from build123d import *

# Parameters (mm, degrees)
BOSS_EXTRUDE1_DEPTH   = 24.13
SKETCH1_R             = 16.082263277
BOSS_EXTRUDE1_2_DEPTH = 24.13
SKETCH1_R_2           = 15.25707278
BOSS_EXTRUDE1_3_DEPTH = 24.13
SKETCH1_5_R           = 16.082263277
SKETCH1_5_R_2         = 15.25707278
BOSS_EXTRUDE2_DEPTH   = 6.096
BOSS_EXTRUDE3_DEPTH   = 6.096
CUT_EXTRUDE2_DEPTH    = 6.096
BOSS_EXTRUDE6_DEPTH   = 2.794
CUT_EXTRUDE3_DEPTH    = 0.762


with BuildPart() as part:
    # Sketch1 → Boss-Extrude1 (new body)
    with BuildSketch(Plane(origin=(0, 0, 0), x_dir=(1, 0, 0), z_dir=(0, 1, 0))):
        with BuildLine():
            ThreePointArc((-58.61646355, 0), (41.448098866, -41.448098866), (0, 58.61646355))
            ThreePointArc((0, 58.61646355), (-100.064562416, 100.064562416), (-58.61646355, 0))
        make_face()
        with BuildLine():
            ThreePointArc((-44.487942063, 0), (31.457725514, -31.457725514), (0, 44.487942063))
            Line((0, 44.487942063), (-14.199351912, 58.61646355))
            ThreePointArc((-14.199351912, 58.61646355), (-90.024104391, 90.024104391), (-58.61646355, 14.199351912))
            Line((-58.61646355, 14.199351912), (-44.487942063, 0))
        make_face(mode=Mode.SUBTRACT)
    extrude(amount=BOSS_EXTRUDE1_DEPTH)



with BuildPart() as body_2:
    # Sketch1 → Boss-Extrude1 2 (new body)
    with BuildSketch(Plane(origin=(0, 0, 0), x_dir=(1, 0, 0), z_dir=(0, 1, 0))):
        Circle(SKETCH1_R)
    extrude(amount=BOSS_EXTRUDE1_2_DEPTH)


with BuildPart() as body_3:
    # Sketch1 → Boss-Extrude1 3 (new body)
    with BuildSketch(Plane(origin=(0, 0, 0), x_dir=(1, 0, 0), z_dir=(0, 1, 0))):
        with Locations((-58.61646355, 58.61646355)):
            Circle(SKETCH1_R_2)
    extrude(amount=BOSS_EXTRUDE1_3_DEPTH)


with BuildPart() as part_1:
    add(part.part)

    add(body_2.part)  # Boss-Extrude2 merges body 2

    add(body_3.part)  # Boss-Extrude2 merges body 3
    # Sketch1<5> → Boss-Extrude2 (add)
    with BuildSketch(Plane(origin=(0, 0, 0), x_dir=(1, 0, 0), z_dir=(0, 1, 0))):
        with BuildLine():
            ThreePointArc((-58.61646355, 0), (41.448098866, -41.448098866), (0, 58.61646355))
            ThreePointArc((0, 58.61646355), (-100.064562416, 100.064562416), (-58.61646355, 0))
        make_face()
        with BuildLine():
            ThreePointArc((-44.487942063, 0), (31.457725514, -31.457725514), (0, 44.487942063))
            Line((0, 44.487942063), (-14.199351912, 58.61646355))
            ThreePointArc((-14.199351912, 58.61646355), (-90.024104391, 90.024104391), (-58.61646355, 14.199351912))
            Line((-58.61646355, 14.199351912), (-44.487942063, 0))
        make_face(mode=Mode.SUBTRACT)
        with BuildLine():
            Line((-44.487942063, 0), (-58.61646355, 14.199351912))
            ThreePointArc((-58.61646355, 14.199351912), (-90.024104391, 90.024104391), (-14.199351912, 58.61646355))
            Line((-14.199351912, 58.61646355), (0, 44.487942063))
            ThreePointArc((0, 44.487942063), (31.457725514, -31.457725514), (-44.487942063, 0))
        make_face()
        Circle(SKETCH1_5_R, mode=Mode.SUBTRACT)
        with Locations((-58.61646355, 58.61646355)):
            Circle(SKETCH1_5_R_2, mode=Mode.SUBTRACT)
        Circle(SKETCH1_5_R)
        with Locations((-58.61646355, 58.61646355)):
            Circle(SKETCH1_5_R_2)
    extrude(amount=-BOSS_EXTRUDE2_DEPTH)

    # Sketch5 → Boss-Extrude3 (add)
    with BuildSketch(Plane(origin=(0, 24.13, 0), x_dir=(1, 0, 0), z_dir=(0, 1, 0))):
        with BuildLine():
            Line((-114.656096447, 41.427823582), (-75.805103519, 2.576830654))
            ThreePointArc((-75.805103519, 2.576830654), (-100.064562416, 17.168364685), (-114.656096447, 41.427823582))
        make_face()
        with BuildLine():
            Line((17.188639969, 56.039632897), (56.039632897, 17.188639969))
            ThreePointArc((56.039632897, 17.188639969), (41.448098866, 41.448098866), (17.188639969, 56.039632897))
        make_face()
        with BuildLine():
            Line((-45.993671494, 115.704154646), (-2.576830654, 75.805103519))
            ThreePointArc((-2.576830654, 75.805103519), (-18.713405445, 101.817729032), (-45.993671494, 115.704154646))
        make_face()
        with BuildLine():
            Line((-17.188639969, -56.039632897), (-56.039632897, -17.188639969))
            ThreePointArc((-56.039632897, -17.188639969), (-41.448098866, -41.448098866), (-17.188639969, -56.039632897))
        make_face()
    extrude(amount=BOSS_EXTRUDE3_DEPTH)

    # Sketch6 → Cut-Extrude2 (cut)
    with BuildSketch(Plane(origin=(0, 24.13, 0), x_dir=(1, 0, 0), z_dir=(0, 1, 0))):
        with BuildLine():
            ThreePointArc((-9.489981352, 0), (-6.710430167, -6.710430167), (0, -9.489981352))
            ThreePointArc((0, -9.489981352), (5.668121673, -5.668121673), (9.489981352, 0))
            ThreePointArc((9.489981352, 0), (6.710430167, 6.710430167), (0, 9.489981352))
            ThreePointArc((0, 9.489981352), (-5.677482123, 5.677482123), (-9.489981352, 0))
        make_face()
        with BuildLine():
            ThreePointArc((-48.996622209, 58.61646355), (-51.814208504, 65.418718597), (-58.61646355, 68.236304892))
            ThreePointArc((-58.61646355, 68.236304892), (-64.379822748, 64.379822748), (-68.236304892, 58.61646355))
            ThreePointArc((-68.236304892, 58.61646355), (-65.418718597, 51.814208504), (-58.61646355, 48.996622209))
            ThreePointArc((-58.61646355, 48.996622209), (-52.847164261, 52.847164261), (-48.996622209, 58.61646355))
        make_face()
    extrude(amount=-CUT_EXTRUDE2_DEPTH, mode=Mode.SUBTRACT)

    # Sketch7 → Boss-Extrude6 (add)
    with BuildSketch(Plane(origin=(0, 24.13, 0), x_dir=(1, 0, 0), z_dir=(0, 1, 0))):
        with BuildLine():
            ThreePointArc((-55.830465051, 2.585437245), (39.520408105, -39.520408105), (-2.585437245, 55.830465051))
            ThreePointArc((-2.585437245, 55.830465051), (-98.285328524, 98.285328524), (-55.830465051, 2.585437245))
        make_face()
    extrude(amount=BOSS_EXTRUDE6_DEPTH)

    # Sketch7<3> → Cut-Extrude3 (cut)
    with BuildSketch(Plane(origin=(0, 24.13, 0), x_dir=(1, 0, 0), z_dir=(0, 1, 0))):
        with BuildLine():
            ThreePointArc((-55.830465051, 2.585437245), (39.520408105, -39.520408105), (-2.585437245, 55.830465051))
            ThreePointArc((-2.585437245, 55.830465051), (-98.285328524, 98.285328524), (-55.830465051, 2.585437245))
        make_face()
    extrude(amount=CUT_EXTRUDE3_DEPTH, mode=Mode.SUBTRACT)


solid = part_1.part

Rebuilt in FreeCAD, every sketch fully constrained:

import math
import FreeCAD as App
import Part
import Sketcher
Q = App.Units.Quantity

doc = App.newDocument("Part")
body = doc.addObject("PartDesign::Body", "Body")

# Sketch on XZ plane
sketch1 = body.newObject("Sketcher::SketchObject", "Sketch")
sketch1.AttachmentSupport = (doc.getObject("XZ_Plane"), [""])
sketch1.MapMode = "FlatFace"
sketch1.addGeometry(Part.ArcOfCircle(Part.Circle(App.Vector(0, 0, 0), App.Vector(0, 0, 1), 59), math.radians(-90), math.radians(180)), False)
sketch1.addGeometry(Part.ArcOfCircle(Part.Circle(App.Vector(-59, -59, 0), App.Vector(0, 0, 1), 59), math.radians(90), math.radians(360)), False)
sketch1.addGeometry(Part.ArcOfCircle(Part.Circle(App.Vector(0, 0, 0), App.Vector(0, 0, 1), 44), math.radians(-90), math.radians(180)), False)
sketch1.addGeometry(Part.LineSegment(App.Vector(-44, 0, 0), App.Vector(-59, -14, 0)), False)
sketch1.addGeometry(Part.ArcOfCircle(Part.Circle(App.Vector(-59, -59, 0), App.Vector(0, 0, 1), 44), math.radians(90), math.radians(360)), False)
sketch1.addGeometry(Part.LineSegment(App.Vector(-14, -59, 0), App.Vector(0, -44, 0)), False)
sketch1.addConstraint(Sketcher.Constraint("Coincident", 0, 1, 1, 2))
sketch1.addConstraint(Sketcher.Constraint("Coincident", 1, 1, 0, 2))
sketch1.addConstraint(Sketcher.Constraint("Coincident", 2, 2, 3, 1))
sketch1.addConstraint(Sketcher.Constraint("Coincident", 3, 2, 4, 1))
sketch1.addConstraint(Sketcher.Constraint("Coincident", 4, 2, 5, 1))
sketch1.addConstraint(Sketcher.Constraint("Coincident", 5, 2, 2, 1))
sketch1.addConstraint(Sketcher.Constraint("Coincident", 0, 3, -1, 1))
sketch1.addConstraint(Sketcher.Constraint("Coincident", 2, 3, -1, 1))
sketch1.addConstraint(Sketcher.Constraint("Coincident", 4, 3, 1, 3))
sketch1.addConstraint(Sketcher.Constraint("Equal", 0, 1))
sketch1.addConstraint(Sketcher.Constraint("PointOnObject", 0, 1, -2))
sketch1.addConstraint(Sketcher.Constraint("PointOnObject", 1, 1, -1))
sketch1.addConstraint(Sketcher.Constraint("PointOnObject", 2, 2, -1))
sketch1.addConstraint(Sketcher.Constraint("PointOnObject", 5, 2, -2))
sketch1.addConstraint(Sketcher.Constraint("Horizontal", 0, 1, 4, 2))
sketch1.addConstraint(Sketcher.Constraint("Vertical", 1, 1, 3, 2))
sketch1.addConstraint(Sketcher.Constraint("Radius", 4, Q("44.417112 mm")))
sketch1.addConstraint(Sketcher.Constraint("Radius", 0, Q("58.616464 mm")))
sketch1.addConstraint(Sketcher.Constraint("Radius", 2, Q("44.487942 mm")))
pad1 = body.newObject("PartDesign::Pad", "Pad")
pad1.Profile = sketch1
pad1.Length = Q("0.95 in")
pad1.Reversed = True
body2 = doc.addObject("PartDesign::Body", "Body001")

# Sketch on XZ plane
sketch2 = body2.newObject("Sketcher::SketchObject", "Sketch001")
sketch2.AttachmentSupport = (doc.getObject("XZ_Plane001"), [""])
sketch2.MapMode = "FlatFace"
sketch2.addGeometry(Part.Circle(App.Vector(0, 0, 0), App.Vector(0, 0, 1), 16), False)
sketch2.addConstraint(Sketcher.Constraint("Coincident", 0, 3, -1, 1))
sketch2.addConstraint(Sketcher.Constraint("Diameter", 0, Q("32.164527 mm")))
pad2 = body2.newObject("PartDesign::Pad", "Pad001")
pad2.Profile = sketch2
pad2.Length = Q("0.95 in")
pad2.Reversed = True
body3 = doc.addObject("PartDesign::Body", "Body002")

# Sketch on XZ plane
sketch3 = body3.newObject("Sketcher::SketchObject", "Sketch002")
sketch3.AttachmentSupport = (doc.getObject("XZ_Plane002"), [""])
sketch3.MapMode = "FlatFace"
sketch3.addGeometry(Part.Circle(App.Vector(-59, -59, 0), App.Vector(0, 0, 1), 15), False)
sketch3.addConstraint(Sketcher.Constraint("Diameter", 0, Q("30.514146 mm")))
sketch3.addConstraint(Sketcher.Constraint("DistanceX", 0, 3, -1, 1, Q("58.616464 mm")))
sketch3.addConstraint(Sketcher.Constraint("DistanceY", 0, 3, -1, 1, Q("58.616464 mm")))
pad3 = body3.newObject("PartDesign::Pad", "Pad002")
pad3.Profile = sketch3
pad3.Length = Q("0.95 in")
pad3.Reversed = True
body.AllowCompound = True
doc.recompute()

boolean = body.newObject("PartDesign::Boolean", "Boolean")
boolean.Type = "Fuse"
boolean.addObjects([body2])
doc.recompute()

boolean2 = body.newObject("PartDesign::Boolean", "Boolean001")
boolean2.Type = "Fuse"
boolean2.addObjects([body3])

# Sketch on XZ plane
sketch4 = body.newObject("Sketcher::SketchObject", "Sketch003")
sketch4.AttachmentSupport = (doc.getObject("XZ_Plane"), [""])
sketch4.MapMode = "FlatFace"
sketch4.addGeometry(Part.ArcOfCircle(Part.Circle(App.Vector(0, 0, 0), App.Vector(0, 0, 1), 59), math.radians(-90), math.radians(180)), False)
sketch4.addGeometry(Part.ArcOfCircle(Part.Circle(App.Vector(-59, -59, 0), App.Vector(0, 0, 1), 59), math.radians(90), math.radians(360)), False)
sketch4.addConstraint(Sketcher.Constraint("Coincident", 0, 1, 1, 2))
sketch4.addConstraint(Sketcher.Constraint("Coincident", 1, 1, 0, 2))
sketch4.addConstraint(Sketcher.Constraint("Coincident", 0, 3, -1, 1))
sketch4.addConstraint(Sketcher.Constraint("Equal", 0, 1))
sketch4.addConstraint(Sketcher.Constraint("PointOnObject", 0, 1, -2))
sketch4.addConstraint(Sketcher.Constraint("PointOnObject", 1, 1, -1))
sketch4.addConstraint(Sketcher.Constraint("Radius", 0, Q("58.616464 mm")))
pad4 = body.newObject("PartDesign::Pad", "Pad003")
pad4.Profile = sketch4
pad4.Length = Q("0.24 in")

# Sketch on XZ plane
sketch5 = body.newObject("Sketcher::SketchObject", "Sketch004")
sketch5.AttachmentSupport = (doc.getObject("XZ_Plane"), [""])
sketch5.MapMode = "FlatFace"
sketch5.AttachmentOffset = App.Placement(App.Vector(0, 0, -0.95 * 25.4), App.Rotation())
sketch5.addGeometry(Part.LineSegment(App.Vector(-76, -3, 0), App.Vector(-115, -41, 0)), False)
sketch5.addGeometry(Part.ArcOfCircle(Part.Circle(App.Vector(-59, -59, 0), App.Vector(0, 0, 1), 59), math.radians(107), math.radians(163)), False)
sketch5.addGeometry(Part.LineSegment(App.Vector(17, -56, 0), App.Vector(56, -17, 0)), False)
sketch5.addGeometry(Part.ArcOfCircle(Part.Circle(App.Vector(0, 0, 0), App.Vector(0, 0, 1), 59), math.radians(-73), math.radians(-17)), False)
sketch5.addGeometry(Part.LineSegment(App.Vector(-46, -116, 0), App.Vector(-3, -76, 0)), False)
sketch5.addGeometry(Part.ArcOfCircle(Part.Circle(App.Vector(-57, -60, 0), App.Vector(0, 0, 1), 57), math.radians(-79), math.radians(-16)), False)
sketch5.addGeometry(Part.LineSegment(App.Vector(-17, 56, 0), App.Vector(-56, 17, 0)), False)
sketch5.addGeometry(Part.ArcOfCircle(Part.Circle(App.Vector(0, 0, 0), App.Vector(0, 0, 1), 59), math.radians(107), math.radians(163)), False)
sketch5.addConstraint(Sketcher.Constraint("Coincident", 0, 1, 1, 1))
sketch5.addConstraint(Sketcher.Constraint("Coincident", 1, 2, 0, 2))
sketch5.addConstraint(Sketcher.Constraint("Coincident", 2, 1, 3, 1))
sketch5.addConstraint(Sketcher.Constraint("Coincident", 3, 2, 2, 2))
sketch5.addConstraint(Sketcher.Constraint("Coincident", 4, 1, 5, 1))
sketch5.addConstraint(Sketcher.Constraint("Coincident", 5, 2, 4, 2))
sketch5.addConstraint(Sketcher.Constraint("Coincident", 6, 1, 7, 1))
sketch5.addConstraint(Sketcher.Constraint("Coincident", 7, 2, 6, 2))
sketch5.addConstraint(Sketcher.Constraint("Coincident", 3, 3, -1, 1))
sketch5.addConstraint(Sketcher.Constraint("Coincident", 7, 3, -1, 1))
sketch5.addConstraint(Sketcher.Constraint("Equal", 1, 3))
sketch5.addConstraint(Sketcher.Constraint("Equal", 3, 7))
sketch5.addConstraint(Sketcher.Constraint("Parallel", 0, 2))
sketch5.addConstraint(Sketcher.Constraint("Parallel", 2, 6))
sketch5.addConstraint(Sketcher.Constraint("Equal", 0, 2))
sketch5.addConstraint(Sketcher.Constraint("Equal", 2, 6))
sketch5.addConstraint(Sketcher.Constraint("Angle", 0, Q("-135 deg")))
sketch5.addConstraint(Sketcher.Constraint("Radius", 1, Q("58.616464 mm")))
sketch5.addConstraint(Sketcher.Constraint("Radius", 5, Q("56.897694 mm")))
sketch5.addConstraint(Sketcher.Constraint("Distance", 0, Q("54.943601 mm")))
sketch5.addConstraint(Sketcher.Constraint("DistanceX", 5, 3, 5, 2, Q("54.636298 mm")))
sketch5.addConstraint(Sketcher.Constraint("Distance", 4, Q("58.965722 mm")))
sketch5.addConstraint(Sketcher.Constraint("DistanceX", 5, 3, -1, 1, Q("57.213129 mm")))
sketch5.addConstraint(Sketcher.Constraint("DistanceY", 5, 3, -1, 1, Q("59.923591 mm")))
sketch5.addConstraint(Sketcher.Constraint("DistanceY", 0, 1, -1, 1, Q("2.576831 mm")))
sketch5.addConstraint(Sketcher.Constraint("DistanceX", 0, 1, 7, 2, Q("19.765471 mm")))
pad5 = body.newObject("PartDesign::Pad", "Pad004")
pad5.Profile = sketch5
pad5.Length = Q("0.24 in")
pad5.Reversed = True

# Sketch on XZ plane
sketch6 = body.newObject("Sketcher::SketchObject", "Sketch005")
sketch6.AttachmentSupport = (doc.getObject("XZ_Plane"), [""])
sketch6.MapMode = "FlatFace"
sketch6.AttachmentOffset = App.Placement(App.Vector(0, 0, -0.95 * 25.4), App.Rotation())
sketch6.addGeometry(Part.ArcOfCircle(Part.Circle(App.Vector(0, 0, 0), App.Vector(0, 0, 1), 9), math.radians(90), math.radians(180)), False)
sketch6.addGeometry(Part.ArcOfCircle(Part.Circle(App.Vector(-7, -7, 0), App.Vector(0, 0, 1), 18), math.radians(23), math.radians(67)), False)
sketch6.addGeometry(Part.ArcOfCircle(Part.Circle(App.Vector(0, 0, 0), App.Vector(0, 0, 1), 9), math.radians(-90), math.radians(0)), False)
sketch6.addGeometry(Part.ArcOfCircle(Part.Circle(App.Vector(7, 7, 0), App.Vector(0, 0, 1), 18), math.radians(-157), math.radians(-113)), False)
sketch6.addGeometry(Part.ArcOfCircle(Part.Circle(App.Vector(-59, -59, 0), App.Vector(0, 0, 1), 10), math.radians(-90), math.radians(0)), False)
sketch6.addGeometry(Part.ArcOfCircle(Part.Circle(App.Vector(-52, -52, 0), App.Vector(0, 0, 1), 18), math.radians(-157), math.radians(-113)), False)
sketch6.addGeometry(Part.ArcOfCircle(Part.Circle(App.Vector(-59, -59, 0), App.Vector(0, 0, 1), 10), math.radians(90), math.radians(180)), False)
sketch6.addGeometry(Part.ArcOfCircle(Part.Circle(App.Vector(-65, -65, 0), App.Vector(0, 0, 1), 18), math.radians(22), math.radians(68)), False)
sketch6.addConstraint(Sketcher.Constraint("Coincident", 0, 1, 1, 2))
sketch6.addConstraint(Sketcher.Constraint("Coincident", 1, 1, 2, 2))
sketch6.addConstraint(Sketcher.Constraint("Coincident", 2, 1, 3, 2))
sketch6.addConstraint(Sketcher.Constraint("Coincident", 3, 1, 0, 2))
sketch6.addConstraint(Sketcher.Constraint("Coincident", 4, 1, 5, 2))
sketch6.addConstraint(Sketcher.Constraint("Coincident", 5, 1, 6, 2))
sketch6.addConstraint(Sketcher.Constraint("Coincident", 6, 1, 7, 2))
sketch6.addConstraint(Sketcher.Constraint("Coincident", 7, 1, 4, 2))
sketch6.addConstraint(Sketcher.Constraint("Coincident", 0, 3, -1, 1))
sketch6.addConstraint(Sketcher.Constraint("Coincident", 2, 3, -1, 1))
sketch6.addConstraint(Sketcher.Constraint("Coincident", 6, 3, 4, 3))
sketch6.addConstraint(Sketcher.Constraint("Equal", 0, 2))
sketch6.addConstraint(Sketcher.Constraint("Equal", 4, 6))
sketch6.addConstraint(Sketcher.Constraint("PointOnObject", 0, 1, -2))
sketch6.addConstraint(Sketcher.Constraint("PointOnObject", 1, 1, -1))
sketch6.addConstraint(Sketcher.Constraint("PointOnObject", 2, 1, -2))
sketch6.addConstraint(Sketcher.Constraint("PointOnObject", 3, 1, -1))
sketch6.addConstraint(Sketcher.Constraint("Horizontal", 6, 3, 5, 1))
sketch6.addConstraint(Sketcher.Constraint("Horizontal", 5, 1, 7, 1))
sketch6.addConstraint(Sketcher.Constraint("Vertical", 6, 3, 4, 1))
sketch6.addConstraint(Sketcher.Constraint("Vertical", 4, 1, 6, 1))
sketch6.addConstraint(Sketcher.Constraint("Radius", 0, Q("9.489981 mm")))
sketch6.addConstraint(Sketcher.Constraint("Radius", 1, Q("17.898912 mm")))
sketch6.addConstraint(Sketcher.Constraint("Radius", 3, Q("17.732412 mm")))
sketch6.addConstraint(Sketcher.Constraint("Radius", 4, Q("9.619841 mm")))
sketch6.addConstraint(Sketcher.Constraint("Radius", 5, Q("17.832241 mm")))
sketch6.addConstraint(Sketcher.Constraint("Radius", 7, Q("17.730205 mm")))
sketch6.addConstraint(Sketcher.Constraint("DistanceX", 4, 3, 3, 3, Q("65.47769 mm")))
sketch6.addConstraint(Sketcher.Constraint("DistanceY", 4, 3, 3, 3, Q("65.47769 mm")))
pocket1 = body.newObject("PartDesign::Pocket", "Pocket")
pocket1.Profile = sketch6
pocket1.Length = Q("0.24 in")
pocket1.Reversed = True

# Sketch on XZ plane
sketch7 = body.newObject("Sketcher::SketchObject", "Sketch006")
sketch7.AttachmentSupport = (doc.getObject("XZ_Plane"), [""])
sketch7.MapMode = "FlatFace"
sketch7.AttachmentOffset = App.Placement(App.Vector(0, 0, -0.95 * 25.4), App.Rotation())
sketch7.addGeometry(Part.ArcOfCircle(Part.Circle(App.Vector(0, 0, 0), App.Vector(0, 0, 1), 56), math.radians(-93), math.radians(183)), False)
sketch7.addGeometry(Part.ArcOfCircle(Part.Circle(App.Vector(-59, -59, 0), App.Vector(0, 0, 1), 56), math.radians(87), math.radians(363)), False)
sketch7.addConstraint(Sketcher.Constraint("Coincident", 0, 1, 1, 2))
sketch7.addConstraint(Sketcher.Constraint("Coincident", 1, 1, 0, 2))
sketch7.addConstraint(Sketcher.Constraint("Coincident", 0, 3, -1, 1))
sketch7.addConstraint(Sketcher.Constraint("Radius", 0, Q("55.890297 mm")))
sketch7.addConstraint(Sketcher.Constraint("Radius", 1, Q("56.100247 mm")))
sketch7.addConstraint(Sketcher.Constraint("DistanceY", 1, 3, 0, 1, Q("2.785998 mm")))
sketch7.addConstraint(Sketcher.Constraint("DistanceX", 1, 3, 1, 1, Q("2.785998 mm")))
pad6 = body.newObject("PartDesign::Pad", "Pad005")
pad6.Profile = sketch7
pad6.Length = Q("0.11 in")
pad6.Reversed = True

# Sketch on XZ plane
sketch8 = body.newObject("Sketcher::SketchObject", "Sketch007")
sketch8.AttachmentSupport = (doc.getObject("XZ_Plane"), [""])
sketch8.MapMode = "FlatFace"
sketch8.AttachmentOffset = App.Placement(App.Vector(0, 0, -0.95 * 25.4), App.Rotation())
sketch8.addGeometry(Part.ArcOfCircle(Part.Circle(App.Vector(0, 0, 0), App.Vector(0, 0, 1), 56), math.radians(-93), math.radians(183)), False)
sketch8.addGeometry(Part.ArcOfCircle(Part.Circle(App.Vector(-59, -59, 0), App.Vector(0, 0, 1), 56), math.radians(87), math.radians(363)), False)
sketch8.addConstraint(Sketcher.Constraint("Coincident", 0, 1, 1, 2))
sketch8.addConstraint(Sketcher.Constraint("Coincident", 1, 1, 0, 2))
sketch8.addConstraint(Sketcher.Constraint("Coincident", 0, 3, -1, 1))
sketch8.addConstraint(Sketcher.Constraint("Radius", 0, Q("55.890297 mm")))
sketch8.addConstraint(Sketcher.Constraint("Radius", 1, Q("56.100247 mm")))
sketch8.addConstraint(Sketcher.Constraint("DistanceY", 1, 3, 0, 1, Q("2.785998 mm")))
sketch8.addConstraint(Sketcher.Constraint("DistanceX", 1, 3, 1, 1, Q("2.785998 mm")))
pocket2 = body.newObject("PartDesign::Pocket", "Pocket001")
pocket2.Profile = sketch8
pocket2.Length = Q("0.03 in")

doc.recompute()
